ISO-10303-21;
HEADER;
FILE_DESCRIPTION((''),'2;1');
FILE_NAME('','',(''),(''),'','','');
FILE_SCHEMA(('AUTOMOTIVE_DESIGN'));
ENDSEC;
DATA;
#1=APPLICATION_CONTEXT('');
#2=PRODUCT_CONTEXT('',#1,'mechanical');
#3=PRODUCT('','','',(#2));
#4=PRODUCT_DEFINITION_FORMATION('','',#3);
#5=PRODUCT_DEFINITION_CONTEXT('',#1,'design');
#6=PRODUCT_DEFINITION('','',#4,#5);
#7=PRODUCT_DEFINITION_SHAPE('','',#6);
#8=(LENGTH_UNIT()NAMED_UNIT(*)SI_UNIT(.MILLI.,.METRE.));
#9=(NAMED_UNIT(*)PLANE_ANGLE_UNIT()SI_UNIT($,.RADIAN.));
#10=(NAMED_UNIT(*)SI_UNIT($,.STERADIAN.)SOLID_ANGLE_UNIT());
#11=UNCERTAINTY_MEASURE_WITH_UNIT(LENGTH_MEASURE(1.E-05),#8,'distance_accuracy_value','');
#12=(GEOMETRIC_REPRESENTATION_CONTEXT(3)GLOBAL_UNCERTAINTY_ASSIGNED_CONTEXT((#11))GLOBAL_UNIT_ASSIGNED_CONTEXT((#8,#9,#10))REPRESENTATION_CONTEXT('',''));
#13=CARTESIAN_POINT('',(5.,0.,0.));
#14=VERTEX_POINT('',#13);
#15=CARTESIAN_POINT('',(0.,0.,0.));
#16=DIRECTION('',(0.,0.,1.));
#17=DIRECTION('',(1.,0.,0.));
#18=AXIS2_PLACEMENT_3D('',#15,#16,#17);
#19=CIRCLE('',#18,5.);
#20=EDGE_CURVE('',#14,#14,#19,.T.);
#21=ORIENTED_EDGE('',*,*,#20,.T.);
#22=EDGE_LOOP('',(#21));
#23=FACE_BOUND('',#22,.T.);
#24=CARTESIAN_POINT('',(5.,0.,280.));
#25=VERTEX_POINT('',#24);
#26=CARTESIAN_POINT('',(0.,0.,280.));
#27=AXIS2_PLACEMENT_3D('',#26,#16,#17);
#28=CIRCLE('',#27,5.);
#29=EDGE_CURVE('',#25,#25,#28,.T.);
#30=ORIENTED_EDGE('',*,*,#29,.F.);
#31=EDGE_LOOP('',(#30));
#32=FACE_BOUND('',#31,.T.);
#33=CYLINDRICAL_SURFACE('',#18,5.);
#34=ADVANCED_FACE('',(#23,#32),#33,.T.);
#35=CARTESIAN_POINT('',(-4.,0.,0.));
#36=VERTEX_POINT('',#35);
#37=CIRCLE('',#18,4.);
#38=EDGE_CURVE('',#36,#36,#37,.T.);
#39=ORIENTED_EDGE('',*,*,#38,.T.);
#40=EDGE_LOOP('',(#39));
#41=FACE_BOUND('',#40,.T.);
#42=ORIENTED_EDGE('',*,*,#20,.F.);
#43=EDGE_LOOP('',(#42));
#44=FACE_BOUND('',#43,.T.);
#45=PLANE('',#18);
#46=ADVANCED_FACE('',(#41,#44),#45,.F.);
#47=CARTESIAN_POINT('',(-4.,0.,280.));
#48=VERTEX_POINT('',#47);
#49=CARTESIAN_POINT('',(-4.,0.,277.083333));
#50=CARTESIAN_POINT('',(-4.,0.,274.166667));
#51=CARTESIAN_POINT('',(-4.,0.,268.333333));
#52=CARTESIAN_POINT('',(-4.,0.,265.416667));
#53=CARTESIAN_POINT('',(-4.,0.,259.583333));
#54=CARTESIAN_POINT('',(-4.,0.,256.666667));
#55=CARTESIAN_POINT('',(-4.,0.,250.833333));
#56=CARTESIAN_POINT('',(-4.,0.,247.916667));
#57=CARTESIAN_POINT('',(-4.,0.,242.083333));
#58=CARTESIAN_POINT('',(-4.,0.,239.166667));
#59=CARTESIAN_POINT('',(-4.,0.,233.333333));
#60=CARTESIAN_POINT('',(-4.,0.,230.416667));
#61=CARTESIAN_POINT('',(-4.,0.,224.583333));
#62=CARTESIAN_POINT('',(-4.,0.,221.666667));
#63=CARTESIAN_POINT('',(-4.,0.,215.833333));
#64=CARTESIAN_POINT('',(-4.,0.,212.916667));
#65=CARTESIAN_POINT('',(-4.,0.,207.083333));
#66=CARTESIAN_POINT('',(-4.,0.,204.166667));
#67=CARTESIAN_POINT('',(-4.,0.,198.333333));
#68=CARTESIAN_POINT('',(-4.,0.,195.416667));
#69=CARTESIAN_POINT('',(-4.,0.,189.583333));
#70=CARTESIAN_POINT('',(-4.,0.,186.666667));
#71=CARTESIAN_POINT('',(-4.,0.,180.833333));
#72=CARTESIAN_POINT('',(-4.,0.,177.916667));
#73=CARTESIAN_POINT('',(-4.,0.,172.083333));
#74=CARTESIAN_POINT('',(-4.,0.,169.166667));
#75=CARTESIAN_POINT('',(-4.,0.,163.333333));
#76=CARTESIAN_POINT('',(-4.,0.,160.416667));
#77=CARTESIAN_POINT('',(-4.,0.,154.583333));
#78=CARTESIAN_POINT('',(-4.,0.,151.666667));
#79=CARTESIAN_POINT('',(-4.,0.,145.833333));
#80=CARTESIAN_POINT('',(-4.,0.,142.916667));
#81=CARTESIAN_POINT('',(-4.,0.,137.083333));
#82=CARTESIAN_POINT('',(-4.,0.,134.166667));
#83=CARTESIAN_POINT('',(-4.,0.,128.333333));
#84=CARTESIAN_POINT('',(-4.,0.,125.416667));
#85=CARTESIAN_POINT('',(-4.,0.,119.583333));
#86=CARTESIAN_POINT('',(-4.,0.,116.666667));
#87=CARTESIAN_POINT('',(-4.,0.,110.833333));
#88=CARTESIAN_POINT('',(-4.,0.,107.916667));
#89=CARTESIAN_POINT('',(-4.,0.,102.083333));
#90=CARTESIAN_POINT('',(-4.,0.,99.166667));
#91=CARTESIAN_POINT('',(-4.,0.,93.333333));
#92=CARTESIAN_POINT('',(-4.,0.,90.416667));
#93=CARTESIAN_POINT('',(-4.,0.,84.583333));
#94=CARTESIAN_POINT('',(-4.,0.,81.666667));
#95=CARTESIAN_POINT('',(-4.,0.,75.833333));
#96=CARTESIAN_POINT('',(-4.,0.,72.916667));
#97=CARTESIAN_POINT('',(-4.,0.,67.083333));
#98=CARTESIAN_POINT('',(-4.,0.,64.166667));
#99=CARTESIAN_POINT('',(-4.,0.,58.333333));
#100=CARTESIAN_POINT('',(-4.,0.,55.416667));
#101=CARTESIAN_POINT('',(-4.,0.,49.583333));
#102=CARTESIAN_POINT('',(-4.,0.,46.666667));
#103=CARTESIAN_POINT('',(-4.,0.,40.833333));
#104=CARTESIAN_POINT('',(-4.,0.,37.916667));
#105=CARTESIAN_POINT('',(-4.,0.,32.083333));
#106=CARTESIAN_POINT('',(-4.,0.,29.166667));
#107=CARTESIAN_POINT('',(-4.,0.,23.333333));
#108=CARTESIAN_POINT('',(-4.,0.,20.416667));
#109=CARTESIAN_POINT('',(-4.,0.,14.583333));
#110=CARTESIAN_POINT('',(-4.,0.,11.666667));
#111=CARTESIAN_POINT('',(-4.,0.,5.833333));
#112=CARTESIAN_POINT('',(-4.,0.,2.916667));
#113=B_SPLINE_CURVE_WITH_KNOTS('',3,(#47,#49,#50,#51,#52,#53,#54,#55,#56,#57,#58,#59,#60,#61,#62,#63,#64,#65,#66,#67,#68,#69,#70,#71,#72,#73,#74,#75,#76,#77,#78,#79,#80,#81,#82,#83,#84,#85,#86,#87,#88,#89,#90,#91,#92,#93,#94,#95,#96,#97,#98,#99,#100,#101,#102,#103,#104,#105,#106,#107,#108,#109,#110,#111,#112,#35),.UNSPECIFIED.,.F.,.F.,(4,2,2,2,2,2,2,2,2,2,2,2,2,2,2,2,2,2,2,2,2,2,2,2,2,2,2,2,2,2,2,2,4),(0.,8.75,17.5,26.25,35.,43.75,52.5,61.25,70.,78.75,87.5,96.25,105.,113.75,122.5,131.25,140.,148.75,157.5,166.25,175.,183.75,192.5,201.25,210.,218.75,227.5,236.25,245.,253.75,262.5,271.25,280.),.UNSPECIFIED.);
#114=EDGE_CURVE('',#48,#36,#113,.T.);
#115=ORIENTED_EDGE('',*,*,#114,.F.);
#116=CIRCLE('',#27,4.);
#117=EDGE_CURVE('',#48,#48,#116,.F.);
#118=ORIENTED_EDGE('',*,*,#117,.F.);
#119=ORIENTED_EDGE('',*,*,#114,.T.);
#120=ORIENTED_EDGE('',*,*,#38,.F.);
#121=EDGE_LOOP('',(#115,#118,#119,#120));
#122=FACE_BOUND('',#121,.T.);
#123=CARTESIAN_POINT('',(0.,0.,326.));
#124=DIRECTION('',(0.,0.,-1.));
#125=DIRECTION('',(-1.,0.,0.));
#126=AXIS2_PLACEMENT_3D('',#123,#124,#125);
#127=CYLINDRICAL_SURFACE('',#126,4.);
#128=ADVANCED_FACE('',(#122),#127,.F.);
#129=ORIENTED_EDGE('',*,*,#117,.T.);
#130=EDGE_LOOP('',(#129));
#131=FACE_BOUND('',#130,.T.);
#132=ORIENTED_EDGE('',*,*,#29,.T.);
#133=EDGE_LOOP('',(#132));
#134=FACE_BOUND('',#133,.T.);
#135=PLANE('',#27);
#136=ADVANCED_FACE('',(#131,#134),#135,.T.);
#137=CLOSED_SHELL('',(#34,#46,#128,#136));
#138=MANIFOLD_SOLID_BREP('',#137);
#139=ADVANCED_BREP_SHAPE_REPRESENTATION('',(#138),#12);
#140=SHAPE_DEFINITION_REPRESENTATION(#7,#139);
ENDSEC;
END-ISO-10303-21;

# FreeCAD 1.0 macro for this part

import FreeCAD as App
import Part
import Sketcher

V = App.Vector

doc = App.newDocument("Part")
body = doc.addObject("PartDesign::Body", "Body")

# Sketch on XY plane
sketch1 = doc.addObject("Sketcher::SketchObject", "Sketch")
body.addObject(sketch1)
sketch1.AttachmentSupport = (doc.XY_Plane, [""])
sketch1.MapMode = "FlatFace"
sketch1.addGeometry(Part.Circle(V(0, 0, 0), V(0, 0, 1), 5), False)
sketch1.addConstraint(Sketcher.Constraint("Coincident", 0, 3, -1, 1))
sketch1.addConstraint(Sketcher.Constraint("Diameter", 0, 10.0))

# Sketch on XY plane
sketch2 = doc.addObject("Sketcher::SketchObject", "Sketch001")
body.addObject(sketch2)
sketch2.AttachmentSupport = (doc.XY_Plane, [""])
sketch2.MapMode = "FlatFace"
sketch2.AttachmentOffset = App.Placement(V(0, 0, 280), App.Rotation())
sketch2.addGeometry(Part.Circle(V(0, 0, 0), V(0, 0, 1), 5), False)
sketch2.addConstraint(Sketcher.Constraint("Coincident", 0, 3, -1, 1))
sketch2.addConstraint(Sketcher.Constraint("Diameter", 0, 10.0))

additiveloft = doc.addObject("PartDesign::AdditiveLoft", "AdditiveLoft")
body.addObject(additiveloft)
additiveloft.Profile = sketch1
additiveloft.Sections = [sketch2]

# Sketch on XY plane
sketch3 = doc.addObject("Sketcher::SketchObject", "Sketch002")
body.addObject(sketch3)
sketch3.AttachmentSupport = (doc.XY_Plane, [""])
sketch3.MapMode = "FlatFace"
sketch3.addGeometry(Part.Circle(V(0, 0, 0), V(0, 0, 1), 4), False)
sketch3.addConstraint(Sketcher.Constraint("Coincident", 0, 3, -1, 1))
sketch3.addConstraint(Sketcher.Constraint("Diameter", 0, 8.0))
pocket1 = doc.addObject("PartDesign::Pocket", "Pocket")
body.addObject(pocket1)
pocket1.Profile = sketch3
pocket1.Length = 326
pocket1.Reversed = True

doc.recompute()
